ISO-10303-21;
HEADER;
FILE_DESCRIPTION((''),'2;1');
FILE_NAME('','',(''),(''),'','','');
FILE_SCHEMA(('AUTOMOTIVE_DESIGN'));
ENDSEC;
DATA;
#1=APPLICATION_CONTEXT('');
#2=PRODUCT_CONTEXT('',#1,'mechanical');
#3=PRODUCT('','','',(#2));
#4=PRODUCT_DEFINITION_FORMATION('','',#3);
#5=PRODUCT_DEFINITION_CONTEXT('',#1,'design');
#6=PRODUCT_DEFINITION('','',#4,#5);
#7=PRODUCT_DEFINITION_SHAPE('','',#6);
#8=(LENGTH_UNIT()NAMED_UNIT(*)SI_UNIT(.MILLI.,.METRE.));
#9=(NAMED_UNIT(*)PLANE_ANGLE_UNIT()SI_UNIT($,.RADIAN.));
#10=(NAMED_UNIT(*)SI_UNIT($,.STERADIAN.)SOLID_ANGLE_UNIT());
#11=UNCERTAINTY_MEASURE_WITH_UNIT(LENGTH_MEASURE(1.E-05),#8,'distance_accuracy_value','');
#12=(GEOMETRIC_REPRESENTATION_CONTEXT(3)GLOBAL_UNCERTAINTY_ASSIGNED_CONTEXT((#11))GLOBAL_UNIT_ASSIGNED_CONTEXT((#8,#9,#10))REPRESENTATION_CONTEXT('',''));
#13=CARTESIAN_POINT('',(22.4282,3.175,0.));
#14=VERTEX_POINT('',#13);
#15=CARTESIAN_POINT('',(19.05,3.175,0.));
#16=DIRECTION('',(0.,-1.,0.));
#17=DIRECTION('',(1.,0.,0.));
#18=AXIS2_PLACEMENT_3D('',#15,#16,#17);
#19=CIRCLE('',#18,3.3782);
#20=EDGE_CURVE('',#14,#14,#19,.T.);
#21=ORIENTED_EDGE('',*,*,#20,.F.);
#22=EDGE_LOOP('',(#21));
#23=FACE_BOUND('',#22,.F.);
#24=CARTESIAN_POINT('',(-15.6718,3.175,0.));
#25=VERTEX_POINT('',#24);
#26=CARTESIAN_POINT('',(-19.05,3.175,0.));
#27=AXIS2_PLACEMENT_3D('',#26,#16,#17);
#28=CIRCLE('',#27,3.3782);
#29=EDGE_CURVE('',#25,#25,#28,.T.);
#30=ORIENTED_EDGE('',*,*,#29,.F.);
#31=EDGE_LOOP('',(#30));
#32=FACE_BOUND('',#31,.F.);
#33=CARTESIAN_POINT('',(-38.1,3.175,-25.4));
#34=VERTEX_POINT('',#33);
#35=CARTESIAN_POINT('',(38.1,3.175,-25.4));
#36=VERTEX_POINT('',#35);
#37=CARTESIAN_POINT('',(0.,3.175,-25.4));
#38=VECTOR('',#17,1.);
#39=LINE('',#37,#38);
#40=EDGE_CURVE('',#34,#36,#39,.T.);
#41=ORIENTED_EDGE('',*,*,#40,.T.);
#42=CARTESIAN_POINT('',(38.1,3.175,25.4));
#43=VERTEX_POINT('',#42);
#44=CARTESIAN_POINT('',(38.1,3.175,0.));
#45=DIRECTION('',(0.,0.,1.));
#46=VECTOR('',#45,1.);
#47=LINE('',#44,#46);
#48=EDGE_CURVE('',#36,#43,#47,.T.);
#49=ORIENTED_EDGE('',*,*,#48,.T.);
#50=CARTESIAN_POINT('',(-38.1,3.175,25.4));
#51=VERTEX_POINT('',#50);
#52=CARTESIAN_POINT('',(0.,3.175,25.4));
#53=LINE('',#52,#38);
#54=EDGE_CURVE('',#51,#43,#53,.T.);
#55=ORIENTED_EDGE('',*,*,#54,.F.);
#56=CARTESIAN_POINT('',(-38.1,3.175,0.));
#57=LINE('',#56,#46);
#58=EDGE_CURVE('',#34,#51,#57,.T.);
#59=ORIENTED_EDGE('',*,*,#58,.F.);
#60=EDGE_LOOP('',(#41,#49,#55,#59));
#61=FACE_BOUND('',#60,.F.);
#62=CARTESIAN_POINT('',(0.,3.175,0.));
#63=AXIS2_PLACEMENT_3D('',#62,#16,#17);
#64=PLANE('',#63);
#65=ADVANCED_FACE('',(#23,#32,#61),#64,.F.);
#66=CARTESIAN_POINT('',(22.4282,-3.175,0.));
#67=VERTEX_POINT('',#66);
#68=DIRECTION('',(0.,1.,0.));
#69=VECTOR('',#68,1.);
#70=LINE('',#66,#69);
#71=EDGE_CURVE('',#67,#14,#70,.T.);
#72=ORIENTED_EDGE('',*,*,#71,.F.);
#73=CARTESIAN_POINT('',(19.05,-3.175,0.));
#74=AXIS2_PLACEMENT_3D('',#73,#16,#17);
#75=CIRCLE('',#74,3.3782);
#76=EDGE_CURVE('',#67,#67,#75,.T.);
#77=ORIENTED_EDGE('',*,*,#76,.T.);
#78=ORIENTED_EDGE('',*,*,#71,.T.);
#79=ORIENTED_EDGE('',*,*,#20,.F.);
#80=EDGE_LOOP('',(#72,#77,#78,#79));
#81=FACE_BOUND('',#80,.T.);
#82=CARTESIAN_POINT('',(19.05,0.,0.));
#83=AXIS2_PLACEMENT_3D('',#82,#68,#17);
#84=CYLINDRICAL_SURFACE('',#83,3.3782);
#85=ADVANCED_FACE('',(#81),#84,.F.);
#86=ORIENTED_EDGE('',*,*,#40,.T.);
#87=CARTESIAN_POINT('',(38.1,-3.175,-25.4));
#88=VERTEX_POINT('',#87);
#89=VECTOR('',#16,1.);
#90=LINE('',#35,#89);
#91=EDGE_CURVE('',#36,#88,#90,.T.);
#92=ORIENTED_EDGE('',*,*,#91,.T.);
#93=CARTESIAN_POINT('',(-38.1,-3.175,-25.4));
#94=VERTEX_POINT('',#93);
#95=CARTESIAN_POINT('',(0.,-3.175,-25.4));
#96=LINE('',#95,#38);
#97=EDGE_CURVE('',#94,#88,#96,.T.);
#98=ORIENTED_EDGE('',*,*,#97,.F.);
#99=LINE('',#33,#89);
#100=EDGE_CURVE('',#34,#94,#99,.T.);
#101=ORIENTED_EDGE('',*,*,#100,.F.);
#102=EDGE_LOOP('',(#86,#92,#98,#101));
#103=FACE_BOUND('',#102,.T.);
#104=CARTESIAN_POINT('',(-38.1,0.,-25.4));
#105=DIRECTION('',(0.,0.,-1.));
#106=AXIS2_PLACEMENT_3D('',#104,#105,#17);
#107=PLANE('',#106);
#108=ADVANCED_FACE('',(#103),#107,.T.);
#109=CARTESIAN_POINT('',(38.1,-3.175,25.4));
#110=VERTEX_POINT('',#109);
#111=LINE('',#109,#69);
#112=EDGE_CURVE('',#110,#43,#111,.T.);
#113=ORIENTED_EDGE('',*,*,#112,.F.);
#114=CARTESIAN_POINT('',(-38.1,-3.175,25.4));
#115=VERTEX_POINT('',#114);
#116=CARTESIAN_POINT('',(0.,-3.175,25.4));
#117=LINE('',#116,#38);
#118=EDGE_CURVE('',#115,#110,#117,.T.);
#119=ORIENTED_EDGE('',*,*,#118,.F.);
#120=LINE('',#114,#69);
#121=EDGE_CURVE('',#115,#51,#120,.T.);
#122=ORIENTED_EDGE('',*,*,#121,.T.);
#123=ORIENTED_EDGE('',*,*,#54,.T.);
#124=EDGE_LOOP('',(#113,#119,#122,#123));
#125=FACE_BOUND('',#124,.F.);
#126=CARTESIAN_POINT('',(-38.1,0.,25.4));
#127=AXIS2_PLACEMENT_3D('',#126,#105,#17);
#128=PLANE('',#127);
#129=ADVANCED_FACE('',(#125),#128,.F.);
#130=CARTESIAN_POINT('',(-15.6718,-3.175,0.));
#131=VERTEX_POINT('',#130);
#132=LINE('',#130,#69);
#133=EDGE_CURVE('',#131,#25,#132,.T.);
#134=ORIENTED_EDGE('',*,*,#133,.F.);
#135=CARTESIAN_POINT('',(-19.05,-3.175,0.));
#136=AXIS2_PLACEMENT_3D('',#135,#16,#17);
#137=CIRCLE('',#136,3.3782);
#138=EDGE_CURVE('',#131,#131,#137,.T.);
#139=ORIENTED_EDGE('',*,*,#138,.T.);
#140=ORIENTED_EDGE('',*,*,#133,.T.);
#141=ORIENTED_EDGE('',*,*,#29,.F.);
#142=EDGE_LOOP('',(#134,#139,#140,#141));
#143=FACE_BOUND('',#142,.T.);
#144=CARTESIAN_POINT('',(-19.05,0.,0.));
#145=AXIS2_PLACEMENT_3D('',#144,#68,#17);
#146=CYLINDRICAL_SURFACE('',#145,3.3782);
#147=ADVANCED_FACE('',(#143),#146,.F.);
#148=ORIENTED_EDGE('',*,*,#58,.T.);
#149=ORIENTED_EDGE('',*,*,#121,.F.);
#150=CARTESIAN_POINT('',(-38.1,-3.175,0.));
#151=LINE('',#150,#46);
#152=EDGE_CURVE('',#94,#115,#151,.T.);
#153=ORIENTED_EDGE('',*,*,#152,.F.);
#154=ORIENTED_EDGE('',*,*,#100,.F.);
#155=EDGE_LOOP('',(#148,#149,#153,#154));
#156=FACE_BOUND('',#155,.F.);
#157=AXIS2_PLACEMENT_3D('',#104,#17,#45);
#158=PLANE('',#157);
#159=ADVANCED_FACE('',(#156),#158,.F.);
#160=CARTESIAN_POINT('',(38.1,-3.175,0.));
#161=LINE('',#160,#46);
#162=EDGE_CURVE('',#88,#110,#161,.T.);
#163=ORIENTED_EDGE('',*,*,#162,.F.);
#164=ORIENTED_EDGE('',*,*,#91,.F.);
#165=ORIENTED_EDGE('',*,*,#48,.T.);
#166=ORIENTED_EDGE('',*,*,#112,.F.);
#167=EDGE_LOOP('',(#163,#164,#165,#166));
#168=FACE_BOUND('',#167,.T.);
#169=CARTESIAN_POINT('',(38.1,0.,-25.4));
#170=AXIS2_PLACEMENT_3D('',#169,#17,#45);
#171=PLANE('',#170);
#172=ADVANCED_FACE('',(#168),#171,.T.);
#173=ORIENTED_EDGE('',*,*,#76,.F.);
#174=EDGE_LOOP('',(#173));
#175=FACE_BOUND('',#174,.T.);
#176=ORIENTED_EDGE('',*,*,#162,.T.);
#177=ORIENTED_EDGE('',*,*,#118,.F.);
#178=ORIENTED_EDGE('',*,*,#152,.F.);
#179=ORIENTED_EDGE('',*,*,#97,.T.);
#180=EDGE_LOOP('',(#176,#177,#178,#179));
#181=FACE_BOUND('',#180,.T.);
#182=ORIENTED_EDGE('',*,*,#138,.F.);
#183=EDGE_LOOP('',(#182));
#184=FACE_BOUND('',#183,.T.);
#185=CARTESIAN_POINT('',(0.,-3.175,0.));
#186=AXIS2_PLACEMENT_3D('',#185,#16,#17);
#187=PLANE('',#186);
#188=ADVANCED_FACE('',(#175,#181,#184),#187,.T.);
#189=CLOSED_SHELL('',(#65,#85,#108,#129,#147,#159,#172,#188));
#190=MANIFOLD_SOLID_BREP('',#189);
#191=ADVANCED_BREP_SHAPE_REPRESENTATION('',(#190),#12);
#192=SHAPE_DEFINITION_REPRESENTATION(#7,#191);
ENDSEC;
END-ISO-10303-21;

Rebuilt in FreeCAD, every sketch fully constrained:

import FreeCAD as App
import Part
import Sketcher
from FreeCAD import Vector
Q = App.Units.Quantity


def add_polygon(sketch, points):
    """Adds a closed chain of lines whose ends are joined by coincident constraints."""
    first, n = sketch.GeometryCount, len(points)
    for a, b in zip(points, points[1:] + points[:1]):
        sketch.addGeometry(Part.LineSegment(App.Vector(*a, 0), App.Vector(*b, 0)), False)
    for i in range(n):
        sketch.addConstraint(Sketcher.Constraint("Coincident", first + i, 2, first + (i + 1) % n, 1))

doc = App.newDocument("Part")
body = doc.addObject("PartDesign::Body", "Body")

sketch1 = body.newObject("Sketcher::SketchObject", "Sketch")
sketch1.AttachmentSupport = (doc.getObject("XZ_Plane"), [""])
sketch1.MapMode = "FlatFace"
add_polygon(sketch1, [(-38.1, 25.4), (-38.1, -25.4), (38.1, -25.4), (38.1, 25.4)])
sketch1.addGeometry(Part.Circle(Vector(-19.1, 0, 0), Vector(0, 0, 1), 3.4), False)
sketch1.addGeometry(Part.Circle(Vector(19.1, 0, 0), Vector(0, 0, 1), 3.4), False)
sketch1.addConstraint(Sketcher.Constraint("Vertical", 0))
sketch1.addConstraint(Sketcher.Constraint("Horizontal", 1))
sketch1.addConstraint(Sketcher.Constraint("Vertical", 2))
sketch1.addConstraint(Sketcher.Constraint("Horizontal", 3))
sketch1.addConstraint(Sketcher.Constraint("Equal", 4, 5))
sketch1.addConstraint(Sketcher.Constraint("Symmetric", 4, 3, 5, 3, -1, 1))
sketch1.addConstraint(Sketcher.Constraint("Symmetric", 0, 2, 2, 2, -1, 1))
sketch1.addConstraint(Sketcher.Constraint("PointOnObject", 4, 3, -1))
sketch1.addConstraint(Sketcher.Constraint("DistanceX", 1, 1, 1, 2, Q("3 in")))
sketch1.addConstraint(Sketcher.Constraint("DistanceY", 0, 2, 0, 1, Q("2 in")))
sketch1.addConstraint(Sketcher.Constraint("Diameter", 4, Q("0.266 in")))
sketch1.addConstraint(Sketcher.Constraint("DistanceX", 4, 3, 5, 3, Q("1.5 in")))
pad1 = body.newObject("PartDesign::Pad", "Pad")
pad1.Profile = sketch1
pad1.Length = Q("0.25 in")
pad1.Midplane = True

doc.recompute()
